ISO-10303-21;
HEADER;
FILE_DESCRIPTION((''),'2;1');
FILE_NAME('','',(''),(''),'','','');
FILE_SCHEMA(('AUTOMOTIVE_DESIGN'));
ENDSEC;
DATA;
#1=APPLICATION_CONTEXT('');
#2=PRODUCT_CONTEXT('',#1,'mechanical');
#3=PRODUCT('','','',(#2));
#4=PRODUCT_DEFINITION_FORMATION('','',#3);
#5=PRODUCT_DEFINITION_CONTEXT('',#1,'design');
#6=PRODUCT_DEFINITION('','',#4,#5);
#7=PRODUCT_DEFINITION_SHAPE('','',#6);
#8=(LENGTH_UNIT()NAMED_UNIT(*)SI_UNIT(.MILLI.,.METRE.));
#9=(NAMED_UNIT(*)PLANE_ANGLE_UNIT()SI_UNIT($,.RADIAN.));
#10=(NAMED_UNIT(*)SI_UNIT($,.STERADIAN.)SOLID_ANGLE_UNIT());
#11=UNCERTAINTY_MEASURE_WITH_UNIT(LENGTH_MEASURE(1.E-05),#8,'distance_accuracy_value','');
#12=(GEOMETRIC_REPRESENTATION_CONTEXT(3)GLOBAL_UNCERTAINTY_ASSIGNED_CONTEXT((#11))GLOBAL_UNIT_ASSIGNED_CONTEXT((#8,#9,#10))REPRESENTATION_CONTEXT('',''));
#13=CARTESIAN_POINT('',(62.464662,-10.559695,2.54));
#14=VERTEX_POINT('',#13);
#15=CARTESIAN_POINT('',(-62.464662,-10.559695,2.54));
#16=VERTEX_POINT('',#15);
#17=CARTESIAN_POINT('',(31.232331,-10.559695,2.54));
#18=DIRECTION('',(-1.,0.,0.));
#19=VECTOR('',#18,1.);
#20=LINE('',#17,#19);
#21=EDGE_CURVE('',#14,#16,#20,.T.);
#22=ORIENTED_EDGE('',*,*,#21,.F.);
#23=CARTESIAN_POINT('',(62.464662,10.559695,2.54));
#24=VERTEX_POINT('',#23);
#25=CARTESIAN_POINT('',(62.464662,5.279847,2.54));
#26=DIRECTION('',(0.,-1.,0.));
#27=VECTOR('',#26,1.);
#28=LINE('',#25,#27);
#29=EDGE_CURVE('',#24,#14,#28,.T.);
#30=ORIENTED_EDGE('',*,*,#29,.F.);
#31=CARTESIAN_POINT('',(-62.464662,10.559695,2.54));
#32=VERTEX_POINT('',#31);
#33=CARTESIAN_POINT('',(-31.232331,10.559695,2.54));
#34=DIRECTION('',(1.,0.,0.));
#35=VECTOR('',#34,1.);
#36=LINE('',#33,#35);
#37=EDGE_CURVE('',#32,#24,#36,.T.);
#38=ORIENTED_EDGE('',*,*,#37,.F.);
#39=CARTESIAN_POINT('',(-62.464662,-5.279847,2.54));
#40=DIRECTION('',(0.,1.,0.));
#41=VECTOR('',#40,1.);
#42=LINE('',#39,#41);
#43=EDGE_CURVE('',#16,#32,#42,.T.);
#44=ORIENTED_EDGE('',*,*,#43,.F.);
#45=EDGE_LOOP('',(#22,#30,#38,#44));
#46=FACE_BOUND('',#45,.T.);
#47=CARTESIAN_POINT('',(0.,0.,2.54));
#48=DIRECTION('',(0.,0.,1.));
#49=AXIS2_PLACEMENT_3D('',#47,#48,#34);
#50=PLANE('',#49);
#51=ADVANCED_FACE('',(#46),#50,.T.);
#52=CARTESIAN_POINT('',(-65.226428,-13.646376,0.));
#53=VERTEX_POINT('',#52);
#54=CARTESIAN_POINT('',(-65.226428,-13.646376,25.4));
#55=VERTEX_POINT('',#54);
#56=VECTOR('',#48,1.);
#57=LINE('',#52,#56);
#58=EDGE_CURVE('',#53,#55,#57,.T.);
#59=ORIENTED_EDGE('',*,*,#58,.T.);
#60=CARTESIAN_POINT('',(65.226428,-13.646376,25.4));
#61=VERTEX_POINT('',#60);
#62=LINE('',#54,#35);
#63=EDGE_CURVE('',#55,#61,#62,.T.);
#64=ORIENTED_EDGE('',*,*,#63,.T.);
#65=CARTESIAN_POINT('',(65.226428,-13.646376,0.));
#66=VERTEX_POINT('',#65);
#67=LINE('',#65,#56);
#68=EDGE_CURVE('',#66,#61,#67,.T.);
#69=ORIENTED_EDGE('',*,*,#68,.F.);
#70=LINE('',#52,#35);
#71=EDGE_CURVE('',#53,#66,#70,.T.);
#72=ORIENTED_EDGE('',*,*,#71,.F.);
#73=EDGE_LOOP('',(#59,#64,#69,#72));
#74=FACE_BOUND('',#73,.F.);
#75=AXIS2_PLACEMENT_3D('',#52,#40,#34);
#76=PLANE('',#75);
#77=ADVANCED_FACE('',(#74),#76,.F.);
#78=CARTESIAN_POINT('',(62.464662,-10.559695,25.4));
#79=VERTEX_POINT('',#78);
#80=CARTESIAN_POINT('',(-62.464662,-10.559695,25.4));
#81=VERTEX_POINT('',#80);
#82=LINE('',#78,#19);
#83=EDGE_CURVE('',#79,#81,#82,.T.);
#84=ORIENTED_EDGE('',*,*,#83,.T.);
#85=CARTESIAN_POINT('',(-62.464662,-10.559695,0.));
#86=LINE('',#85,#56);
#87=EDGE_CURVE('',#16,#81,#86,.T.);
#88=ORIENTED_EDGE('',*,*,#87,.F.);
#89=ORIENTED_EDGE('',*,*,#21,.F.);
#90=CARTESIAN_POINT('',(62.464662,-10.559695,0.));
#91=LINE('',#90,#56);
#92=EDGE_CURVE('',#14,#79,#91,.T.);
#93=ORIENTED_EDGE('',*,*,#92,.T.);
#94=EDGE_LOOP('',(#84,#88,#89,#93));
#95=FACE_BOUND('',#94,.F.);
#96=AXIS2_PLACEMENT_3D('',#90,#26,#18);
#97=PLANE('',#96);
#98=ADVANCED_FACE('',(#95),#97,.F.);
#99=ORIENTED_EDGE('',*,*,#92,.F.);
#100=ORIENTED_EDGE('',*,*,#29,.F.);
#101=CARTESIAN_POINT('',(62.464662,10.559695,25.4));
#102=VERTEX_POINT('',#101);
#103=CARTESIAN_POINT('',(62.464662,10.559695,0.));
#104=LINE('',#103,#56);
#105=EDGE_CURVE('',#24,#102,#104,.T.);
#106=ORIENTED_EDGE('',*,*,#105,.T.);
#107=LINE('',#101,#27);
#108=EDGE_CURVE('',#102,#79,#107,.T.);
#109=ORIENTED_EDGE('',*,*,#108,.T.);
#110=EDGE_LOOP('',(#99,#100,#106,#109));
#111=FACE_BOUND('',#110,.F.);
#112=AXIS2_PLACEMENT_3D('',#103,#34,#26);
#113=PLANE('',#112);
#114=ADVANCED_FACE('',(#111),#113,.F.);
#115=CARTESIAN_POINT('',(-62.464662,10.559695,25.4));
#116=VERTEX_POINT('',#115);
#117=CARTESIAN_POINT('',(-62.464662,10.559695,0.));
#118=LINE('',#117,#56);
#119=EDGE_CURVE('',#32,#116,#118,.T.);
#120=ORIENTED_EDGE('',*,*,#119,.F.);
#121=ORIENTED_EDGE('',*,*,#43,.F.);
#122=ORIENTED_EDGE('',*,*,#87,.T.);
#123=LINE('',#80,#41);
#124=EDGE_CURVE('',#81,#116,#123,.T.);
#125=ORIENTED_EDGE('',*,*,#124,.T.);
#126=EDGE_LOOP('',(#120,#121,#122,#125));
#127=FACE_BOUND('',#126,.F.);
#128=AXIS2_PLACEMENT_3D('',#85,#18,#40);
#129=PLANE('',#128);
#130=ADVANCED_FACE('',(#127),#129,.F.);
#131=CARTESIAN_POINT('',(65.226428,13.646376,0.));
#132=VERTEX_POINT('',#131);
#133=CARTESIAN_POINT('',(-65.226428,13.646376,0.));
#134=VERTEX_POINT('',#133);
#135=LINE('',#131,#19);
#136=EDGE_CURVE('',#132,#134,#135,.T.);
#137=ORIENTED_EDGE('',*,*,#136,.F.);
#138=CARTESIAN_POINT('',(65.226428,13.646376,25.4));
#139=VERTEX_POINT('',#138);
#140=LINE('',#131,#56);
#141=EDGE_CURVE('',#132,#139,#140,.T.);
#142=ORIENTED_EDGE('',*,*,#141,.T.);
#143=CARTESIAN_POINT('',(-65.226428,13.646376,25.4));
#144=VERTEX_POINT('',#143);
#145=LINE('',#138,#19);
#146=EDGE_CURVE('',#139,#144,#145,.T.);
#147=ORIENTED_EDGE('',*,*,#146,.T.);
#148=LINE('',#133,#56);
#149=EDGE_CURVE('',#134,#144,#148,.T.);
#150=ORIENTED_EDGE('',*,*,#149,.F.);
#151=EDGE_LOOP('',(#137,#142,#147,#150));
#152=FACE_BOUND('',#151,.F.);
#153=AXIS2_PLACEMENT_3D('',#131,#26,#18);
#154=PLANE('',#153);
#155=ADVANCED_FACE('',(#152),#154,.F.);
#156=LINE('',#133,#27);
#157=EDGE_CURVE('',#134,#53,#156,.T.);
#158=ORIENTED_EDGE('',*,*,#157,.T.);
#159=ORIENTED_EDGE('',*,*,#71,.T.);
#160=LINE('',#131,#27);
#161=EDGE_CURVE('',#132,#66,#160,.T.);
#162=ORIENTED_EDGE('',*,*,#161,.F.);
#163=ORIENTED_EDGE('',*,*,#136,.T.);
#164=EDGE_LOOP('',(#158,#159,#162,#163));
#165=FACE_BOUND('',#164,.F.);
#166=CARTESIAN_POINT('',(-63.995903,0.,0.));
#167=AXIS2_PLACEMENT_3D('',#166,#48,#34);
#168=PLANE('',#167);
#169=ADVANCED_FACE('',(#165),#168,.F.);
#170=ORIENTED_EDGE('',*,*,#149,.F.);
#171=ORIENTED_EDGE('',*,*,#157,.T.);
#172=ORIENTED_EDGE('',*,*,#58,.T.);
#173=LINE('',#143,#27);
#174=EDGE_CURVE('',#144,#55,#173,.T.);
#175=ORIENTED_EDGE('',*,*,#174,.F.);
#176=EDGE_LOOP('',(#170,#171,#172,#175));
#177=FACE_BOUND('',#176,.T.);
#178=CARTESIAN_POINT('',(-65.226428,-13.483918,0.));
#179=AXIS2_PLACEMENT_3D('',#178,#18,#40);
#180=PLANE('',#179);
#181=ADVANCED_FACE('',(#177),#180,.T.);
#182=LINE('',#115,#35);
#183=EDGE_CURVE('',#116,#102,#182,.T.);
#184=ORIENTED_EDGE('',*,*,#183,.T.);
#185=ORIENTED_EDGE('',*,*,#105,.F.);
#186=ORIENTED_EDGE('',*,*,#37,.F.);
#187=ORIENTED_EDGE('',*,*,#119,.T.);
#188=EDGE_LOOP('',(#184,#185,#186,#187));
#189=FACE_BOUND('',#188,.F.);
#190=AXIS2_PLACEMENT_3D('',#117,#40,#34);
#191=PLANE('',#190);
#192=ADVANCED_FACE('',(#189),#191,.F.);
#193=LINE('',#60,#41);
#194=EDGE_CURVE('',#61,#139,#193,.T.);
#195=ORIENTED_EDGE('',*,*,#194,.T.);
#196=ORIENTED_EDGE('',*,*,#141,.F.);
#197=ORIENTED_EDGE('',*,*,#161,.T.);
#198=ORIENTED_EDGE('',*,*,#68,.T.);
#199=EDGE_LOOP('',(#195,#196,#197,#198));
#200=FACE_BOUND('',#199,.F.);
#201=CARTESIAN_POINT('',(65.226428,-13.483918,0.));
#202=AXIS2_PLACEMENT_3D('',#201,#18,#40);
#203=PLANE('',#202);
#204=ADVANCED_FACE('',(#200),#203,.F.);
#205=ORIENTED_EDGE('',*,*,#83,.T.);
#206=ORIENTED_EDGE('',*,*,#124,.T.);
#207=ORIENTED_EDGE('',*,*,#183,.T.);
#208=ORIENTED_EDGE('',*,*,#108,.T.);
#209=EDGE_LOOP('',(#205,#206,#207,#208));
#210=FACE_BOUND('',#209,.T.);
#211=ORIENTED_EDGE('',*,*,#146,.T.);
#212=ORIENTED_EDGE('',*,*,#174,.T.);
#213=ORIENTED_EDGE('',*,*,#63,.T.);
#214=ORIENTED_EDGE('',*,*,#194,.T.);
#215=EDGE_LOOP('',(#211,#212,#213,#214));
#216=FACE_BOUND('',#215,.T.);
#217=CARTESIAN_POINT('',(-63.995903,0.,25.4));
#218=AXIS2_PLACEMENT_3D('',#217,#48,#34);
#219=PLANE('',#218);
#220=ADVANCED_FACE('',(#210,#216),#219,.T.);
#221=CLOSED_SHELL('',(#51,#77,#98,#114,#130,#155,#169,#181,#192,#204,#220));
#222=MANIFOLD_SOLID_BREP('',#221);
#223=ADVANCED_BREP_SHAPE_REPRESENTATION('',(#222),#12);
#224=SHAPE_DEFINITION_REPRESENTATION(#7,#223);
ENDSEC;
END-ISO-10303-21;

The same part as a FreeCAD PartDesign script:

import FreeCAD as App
import Part
import Sketcher

V = App.Vector
Q = App.Units.Quantity

doc = App.newDocument("Part")
body = doc.addObject("PartDesign::Body", "Body")

# Sketch on XY plane
sketch1 = body.newObject("Sketcher::SketchObject", "Sketch")
sketch1.AttachmentSupport = (doc.getObject("XY_Plane"), [""])
sketch1.MapMode = "FlatFace"
sketch1.addGeometry(Part.LineSegment(V(-65, 14, 0), V(-65, -14, 0)), False)
sketch1.addGeometry(Part.LineSegment(V(-65, -14, 0), V(65, -14, 0)), False)
sketch1.addGeometry(Part.LineSegment(V(65, -14, 0), V(65, 14, 0)), False)
sketch1.addGeometry(Part.LineSegment(V(65, 14, 0), V(-65, 14, 0)), False)
sketch1.addGeometry(Part.LineSegment(V(62, -11, 0), V(-62, -11, 0)), False)
sketch1.addGeometry(Part.LineSegment(V(-62, -11, 0), V(-62, 11, 0)), False)
sketch1.addGeometry(Part.LineSegment(V(-62, 11, 0), V(62, 11, 0)), False)
sketch1.addGeometry(Part.LineSegment(V(62, 11, 0), V(62, -11, 0)), False)
sketch1.addConstraint(Sketcher.Constraint("Coincident", 0, 2, 1, 1))
sketch1.addConstraint(Sketcher.Constraint("Coincident", 1, 2, 2, 1))
sketch1.addConstraint(Sketcher.Constraint("Coincident", 2, 2, 3, 1))
sketch1.addConstraint(Sketcher.Constraint("Coincident", 3, 2, 0, 1))
sketch1.addConstraint(Sketcher.Constraint("Coincident", 4, 2, 5, 1))
sketch1.addConstraint(Sketcher.Constraint("Coincident", 5, 2, 6, 1))
sketch1.addConstraint(Sketcher.Constraint("Coincident", 6, 2, 7, 1))
sketch1.addConstraint(Sketcher.Constraint("Coincident", 7, 2, 4, 1))
sketch1.addConstraint(Sketcher.Constraint("Vertical", 0))
sketch1.addConstraint(Sketcher.Constraint("Horizontal", 1))
sketch1.addConstraint(Sketcher.Constraint("Vertical", 2))
sketch1.addConstraint(Sketcher.Constraint("Horizontal", 3))
sketch1.addConstraint(Sketcher.Constraint("Horizontal", 4))
sketch1.addConstraint(Sketcher.Constraint("Vertical", 5))
sketch1.addConstraint(Sketcher.Constraint("Horizontal", 6))
sketch1.addConstraint(Sketcher.Constraint("Vertical", 7))
sketch1.addConstraint(Sketcher.Constraint("Symmetric", 0, 2, 2, 2, -1, 1))
sketch1.addConstraint(Sketcher.Constraint("Symmetric", 4, 2, 6, 2, -1, 1))
sketch1.addConstraint(Sketcher.Constraint("DistanceY", 0, 2, 0, 1, 27.292752))
sketch1.addConstraint(Sketcher.Constraint("DistanceY", 5, 1, 5, 2, 21.11939))
sketch1.addConstraint(Sketcher.Constraint("DistanceX", 1, 1, 1, 2, 130.452856))
sketch1.addConstraint(Sketcher.Constraint("DistanceX", 4, 2, 4, 1, 124.929324))
pad1 = body.newObject("PartDesign::Pad", "Pad")
pad1.Profile = sketch1
pad1.Length = Q("1 in")

# Sketch on XY plane
sketch2 = body.newObject("Sketcher::SketchObject", "Sketch001")
sketch2.AttachmentSupport = (doc.getObject("XY_Plane"), [""])
sketch2.MapMode = "FlatFace"
sketch2.addGeometry(Part.LineSegment(V(-65, 13, 0), V(-65, -13, 0)), False)
sketch2.addGeometry(Part.LineSegment(V(-65, -13, 0), V(65, -13, 0)), False)
sketch2.addGeometry(Part.LineSegment(V(65, -13, 0), V(65, 13, 0)), False)
sketch2.addGeometry(Part.LineSegment(V(65, 13, 0), V(-65, 13, 0)), False)
sketch2.addConstraint(Sketcher.Constraint("Coincident", 0, 2, 1, 1))
sketch2.addConstraint(Sketcher.Constraint("Coincident", 1, 2, 2, 1))
sketch2.addConstraint(Sketcher.Constraint("Coincident", 2, 2, 3, 1))
sketch2.addConstraint(Sketcher.Constraint("Coincident", 3, 2, 0, 1))
sketch2.addConstraint(Sketcher.Constraint("Vertical", 0))
sketch2.addConstraint(Sketcher.Constraint("Horizontal", 1))
sketch2.addConstraint(Sketcher.Constraint("Vertical", 2))
sketch2.addConstraint(Sketcher.Constraint("Horizontal", 3))
sketch2.addConstraint(Sketcher.Constraint("Symmetric", 0, 2, 2, 2, -1, 1))
sketch2.addConstraint(Sketcher.Constraint("DistanceX", 1, 1, 1, 2, 130.452856))
sketch2.addConstraint(Sketcher.Constraint("DistanceY", 0, 2, 0, 1, 26.967836))
pad2 = body.newObject("PartDesign::Pad", "Pad001")
pad2.Profile = sketch2
pad2.Length = Q("0.1 in")

doc.recompute()
